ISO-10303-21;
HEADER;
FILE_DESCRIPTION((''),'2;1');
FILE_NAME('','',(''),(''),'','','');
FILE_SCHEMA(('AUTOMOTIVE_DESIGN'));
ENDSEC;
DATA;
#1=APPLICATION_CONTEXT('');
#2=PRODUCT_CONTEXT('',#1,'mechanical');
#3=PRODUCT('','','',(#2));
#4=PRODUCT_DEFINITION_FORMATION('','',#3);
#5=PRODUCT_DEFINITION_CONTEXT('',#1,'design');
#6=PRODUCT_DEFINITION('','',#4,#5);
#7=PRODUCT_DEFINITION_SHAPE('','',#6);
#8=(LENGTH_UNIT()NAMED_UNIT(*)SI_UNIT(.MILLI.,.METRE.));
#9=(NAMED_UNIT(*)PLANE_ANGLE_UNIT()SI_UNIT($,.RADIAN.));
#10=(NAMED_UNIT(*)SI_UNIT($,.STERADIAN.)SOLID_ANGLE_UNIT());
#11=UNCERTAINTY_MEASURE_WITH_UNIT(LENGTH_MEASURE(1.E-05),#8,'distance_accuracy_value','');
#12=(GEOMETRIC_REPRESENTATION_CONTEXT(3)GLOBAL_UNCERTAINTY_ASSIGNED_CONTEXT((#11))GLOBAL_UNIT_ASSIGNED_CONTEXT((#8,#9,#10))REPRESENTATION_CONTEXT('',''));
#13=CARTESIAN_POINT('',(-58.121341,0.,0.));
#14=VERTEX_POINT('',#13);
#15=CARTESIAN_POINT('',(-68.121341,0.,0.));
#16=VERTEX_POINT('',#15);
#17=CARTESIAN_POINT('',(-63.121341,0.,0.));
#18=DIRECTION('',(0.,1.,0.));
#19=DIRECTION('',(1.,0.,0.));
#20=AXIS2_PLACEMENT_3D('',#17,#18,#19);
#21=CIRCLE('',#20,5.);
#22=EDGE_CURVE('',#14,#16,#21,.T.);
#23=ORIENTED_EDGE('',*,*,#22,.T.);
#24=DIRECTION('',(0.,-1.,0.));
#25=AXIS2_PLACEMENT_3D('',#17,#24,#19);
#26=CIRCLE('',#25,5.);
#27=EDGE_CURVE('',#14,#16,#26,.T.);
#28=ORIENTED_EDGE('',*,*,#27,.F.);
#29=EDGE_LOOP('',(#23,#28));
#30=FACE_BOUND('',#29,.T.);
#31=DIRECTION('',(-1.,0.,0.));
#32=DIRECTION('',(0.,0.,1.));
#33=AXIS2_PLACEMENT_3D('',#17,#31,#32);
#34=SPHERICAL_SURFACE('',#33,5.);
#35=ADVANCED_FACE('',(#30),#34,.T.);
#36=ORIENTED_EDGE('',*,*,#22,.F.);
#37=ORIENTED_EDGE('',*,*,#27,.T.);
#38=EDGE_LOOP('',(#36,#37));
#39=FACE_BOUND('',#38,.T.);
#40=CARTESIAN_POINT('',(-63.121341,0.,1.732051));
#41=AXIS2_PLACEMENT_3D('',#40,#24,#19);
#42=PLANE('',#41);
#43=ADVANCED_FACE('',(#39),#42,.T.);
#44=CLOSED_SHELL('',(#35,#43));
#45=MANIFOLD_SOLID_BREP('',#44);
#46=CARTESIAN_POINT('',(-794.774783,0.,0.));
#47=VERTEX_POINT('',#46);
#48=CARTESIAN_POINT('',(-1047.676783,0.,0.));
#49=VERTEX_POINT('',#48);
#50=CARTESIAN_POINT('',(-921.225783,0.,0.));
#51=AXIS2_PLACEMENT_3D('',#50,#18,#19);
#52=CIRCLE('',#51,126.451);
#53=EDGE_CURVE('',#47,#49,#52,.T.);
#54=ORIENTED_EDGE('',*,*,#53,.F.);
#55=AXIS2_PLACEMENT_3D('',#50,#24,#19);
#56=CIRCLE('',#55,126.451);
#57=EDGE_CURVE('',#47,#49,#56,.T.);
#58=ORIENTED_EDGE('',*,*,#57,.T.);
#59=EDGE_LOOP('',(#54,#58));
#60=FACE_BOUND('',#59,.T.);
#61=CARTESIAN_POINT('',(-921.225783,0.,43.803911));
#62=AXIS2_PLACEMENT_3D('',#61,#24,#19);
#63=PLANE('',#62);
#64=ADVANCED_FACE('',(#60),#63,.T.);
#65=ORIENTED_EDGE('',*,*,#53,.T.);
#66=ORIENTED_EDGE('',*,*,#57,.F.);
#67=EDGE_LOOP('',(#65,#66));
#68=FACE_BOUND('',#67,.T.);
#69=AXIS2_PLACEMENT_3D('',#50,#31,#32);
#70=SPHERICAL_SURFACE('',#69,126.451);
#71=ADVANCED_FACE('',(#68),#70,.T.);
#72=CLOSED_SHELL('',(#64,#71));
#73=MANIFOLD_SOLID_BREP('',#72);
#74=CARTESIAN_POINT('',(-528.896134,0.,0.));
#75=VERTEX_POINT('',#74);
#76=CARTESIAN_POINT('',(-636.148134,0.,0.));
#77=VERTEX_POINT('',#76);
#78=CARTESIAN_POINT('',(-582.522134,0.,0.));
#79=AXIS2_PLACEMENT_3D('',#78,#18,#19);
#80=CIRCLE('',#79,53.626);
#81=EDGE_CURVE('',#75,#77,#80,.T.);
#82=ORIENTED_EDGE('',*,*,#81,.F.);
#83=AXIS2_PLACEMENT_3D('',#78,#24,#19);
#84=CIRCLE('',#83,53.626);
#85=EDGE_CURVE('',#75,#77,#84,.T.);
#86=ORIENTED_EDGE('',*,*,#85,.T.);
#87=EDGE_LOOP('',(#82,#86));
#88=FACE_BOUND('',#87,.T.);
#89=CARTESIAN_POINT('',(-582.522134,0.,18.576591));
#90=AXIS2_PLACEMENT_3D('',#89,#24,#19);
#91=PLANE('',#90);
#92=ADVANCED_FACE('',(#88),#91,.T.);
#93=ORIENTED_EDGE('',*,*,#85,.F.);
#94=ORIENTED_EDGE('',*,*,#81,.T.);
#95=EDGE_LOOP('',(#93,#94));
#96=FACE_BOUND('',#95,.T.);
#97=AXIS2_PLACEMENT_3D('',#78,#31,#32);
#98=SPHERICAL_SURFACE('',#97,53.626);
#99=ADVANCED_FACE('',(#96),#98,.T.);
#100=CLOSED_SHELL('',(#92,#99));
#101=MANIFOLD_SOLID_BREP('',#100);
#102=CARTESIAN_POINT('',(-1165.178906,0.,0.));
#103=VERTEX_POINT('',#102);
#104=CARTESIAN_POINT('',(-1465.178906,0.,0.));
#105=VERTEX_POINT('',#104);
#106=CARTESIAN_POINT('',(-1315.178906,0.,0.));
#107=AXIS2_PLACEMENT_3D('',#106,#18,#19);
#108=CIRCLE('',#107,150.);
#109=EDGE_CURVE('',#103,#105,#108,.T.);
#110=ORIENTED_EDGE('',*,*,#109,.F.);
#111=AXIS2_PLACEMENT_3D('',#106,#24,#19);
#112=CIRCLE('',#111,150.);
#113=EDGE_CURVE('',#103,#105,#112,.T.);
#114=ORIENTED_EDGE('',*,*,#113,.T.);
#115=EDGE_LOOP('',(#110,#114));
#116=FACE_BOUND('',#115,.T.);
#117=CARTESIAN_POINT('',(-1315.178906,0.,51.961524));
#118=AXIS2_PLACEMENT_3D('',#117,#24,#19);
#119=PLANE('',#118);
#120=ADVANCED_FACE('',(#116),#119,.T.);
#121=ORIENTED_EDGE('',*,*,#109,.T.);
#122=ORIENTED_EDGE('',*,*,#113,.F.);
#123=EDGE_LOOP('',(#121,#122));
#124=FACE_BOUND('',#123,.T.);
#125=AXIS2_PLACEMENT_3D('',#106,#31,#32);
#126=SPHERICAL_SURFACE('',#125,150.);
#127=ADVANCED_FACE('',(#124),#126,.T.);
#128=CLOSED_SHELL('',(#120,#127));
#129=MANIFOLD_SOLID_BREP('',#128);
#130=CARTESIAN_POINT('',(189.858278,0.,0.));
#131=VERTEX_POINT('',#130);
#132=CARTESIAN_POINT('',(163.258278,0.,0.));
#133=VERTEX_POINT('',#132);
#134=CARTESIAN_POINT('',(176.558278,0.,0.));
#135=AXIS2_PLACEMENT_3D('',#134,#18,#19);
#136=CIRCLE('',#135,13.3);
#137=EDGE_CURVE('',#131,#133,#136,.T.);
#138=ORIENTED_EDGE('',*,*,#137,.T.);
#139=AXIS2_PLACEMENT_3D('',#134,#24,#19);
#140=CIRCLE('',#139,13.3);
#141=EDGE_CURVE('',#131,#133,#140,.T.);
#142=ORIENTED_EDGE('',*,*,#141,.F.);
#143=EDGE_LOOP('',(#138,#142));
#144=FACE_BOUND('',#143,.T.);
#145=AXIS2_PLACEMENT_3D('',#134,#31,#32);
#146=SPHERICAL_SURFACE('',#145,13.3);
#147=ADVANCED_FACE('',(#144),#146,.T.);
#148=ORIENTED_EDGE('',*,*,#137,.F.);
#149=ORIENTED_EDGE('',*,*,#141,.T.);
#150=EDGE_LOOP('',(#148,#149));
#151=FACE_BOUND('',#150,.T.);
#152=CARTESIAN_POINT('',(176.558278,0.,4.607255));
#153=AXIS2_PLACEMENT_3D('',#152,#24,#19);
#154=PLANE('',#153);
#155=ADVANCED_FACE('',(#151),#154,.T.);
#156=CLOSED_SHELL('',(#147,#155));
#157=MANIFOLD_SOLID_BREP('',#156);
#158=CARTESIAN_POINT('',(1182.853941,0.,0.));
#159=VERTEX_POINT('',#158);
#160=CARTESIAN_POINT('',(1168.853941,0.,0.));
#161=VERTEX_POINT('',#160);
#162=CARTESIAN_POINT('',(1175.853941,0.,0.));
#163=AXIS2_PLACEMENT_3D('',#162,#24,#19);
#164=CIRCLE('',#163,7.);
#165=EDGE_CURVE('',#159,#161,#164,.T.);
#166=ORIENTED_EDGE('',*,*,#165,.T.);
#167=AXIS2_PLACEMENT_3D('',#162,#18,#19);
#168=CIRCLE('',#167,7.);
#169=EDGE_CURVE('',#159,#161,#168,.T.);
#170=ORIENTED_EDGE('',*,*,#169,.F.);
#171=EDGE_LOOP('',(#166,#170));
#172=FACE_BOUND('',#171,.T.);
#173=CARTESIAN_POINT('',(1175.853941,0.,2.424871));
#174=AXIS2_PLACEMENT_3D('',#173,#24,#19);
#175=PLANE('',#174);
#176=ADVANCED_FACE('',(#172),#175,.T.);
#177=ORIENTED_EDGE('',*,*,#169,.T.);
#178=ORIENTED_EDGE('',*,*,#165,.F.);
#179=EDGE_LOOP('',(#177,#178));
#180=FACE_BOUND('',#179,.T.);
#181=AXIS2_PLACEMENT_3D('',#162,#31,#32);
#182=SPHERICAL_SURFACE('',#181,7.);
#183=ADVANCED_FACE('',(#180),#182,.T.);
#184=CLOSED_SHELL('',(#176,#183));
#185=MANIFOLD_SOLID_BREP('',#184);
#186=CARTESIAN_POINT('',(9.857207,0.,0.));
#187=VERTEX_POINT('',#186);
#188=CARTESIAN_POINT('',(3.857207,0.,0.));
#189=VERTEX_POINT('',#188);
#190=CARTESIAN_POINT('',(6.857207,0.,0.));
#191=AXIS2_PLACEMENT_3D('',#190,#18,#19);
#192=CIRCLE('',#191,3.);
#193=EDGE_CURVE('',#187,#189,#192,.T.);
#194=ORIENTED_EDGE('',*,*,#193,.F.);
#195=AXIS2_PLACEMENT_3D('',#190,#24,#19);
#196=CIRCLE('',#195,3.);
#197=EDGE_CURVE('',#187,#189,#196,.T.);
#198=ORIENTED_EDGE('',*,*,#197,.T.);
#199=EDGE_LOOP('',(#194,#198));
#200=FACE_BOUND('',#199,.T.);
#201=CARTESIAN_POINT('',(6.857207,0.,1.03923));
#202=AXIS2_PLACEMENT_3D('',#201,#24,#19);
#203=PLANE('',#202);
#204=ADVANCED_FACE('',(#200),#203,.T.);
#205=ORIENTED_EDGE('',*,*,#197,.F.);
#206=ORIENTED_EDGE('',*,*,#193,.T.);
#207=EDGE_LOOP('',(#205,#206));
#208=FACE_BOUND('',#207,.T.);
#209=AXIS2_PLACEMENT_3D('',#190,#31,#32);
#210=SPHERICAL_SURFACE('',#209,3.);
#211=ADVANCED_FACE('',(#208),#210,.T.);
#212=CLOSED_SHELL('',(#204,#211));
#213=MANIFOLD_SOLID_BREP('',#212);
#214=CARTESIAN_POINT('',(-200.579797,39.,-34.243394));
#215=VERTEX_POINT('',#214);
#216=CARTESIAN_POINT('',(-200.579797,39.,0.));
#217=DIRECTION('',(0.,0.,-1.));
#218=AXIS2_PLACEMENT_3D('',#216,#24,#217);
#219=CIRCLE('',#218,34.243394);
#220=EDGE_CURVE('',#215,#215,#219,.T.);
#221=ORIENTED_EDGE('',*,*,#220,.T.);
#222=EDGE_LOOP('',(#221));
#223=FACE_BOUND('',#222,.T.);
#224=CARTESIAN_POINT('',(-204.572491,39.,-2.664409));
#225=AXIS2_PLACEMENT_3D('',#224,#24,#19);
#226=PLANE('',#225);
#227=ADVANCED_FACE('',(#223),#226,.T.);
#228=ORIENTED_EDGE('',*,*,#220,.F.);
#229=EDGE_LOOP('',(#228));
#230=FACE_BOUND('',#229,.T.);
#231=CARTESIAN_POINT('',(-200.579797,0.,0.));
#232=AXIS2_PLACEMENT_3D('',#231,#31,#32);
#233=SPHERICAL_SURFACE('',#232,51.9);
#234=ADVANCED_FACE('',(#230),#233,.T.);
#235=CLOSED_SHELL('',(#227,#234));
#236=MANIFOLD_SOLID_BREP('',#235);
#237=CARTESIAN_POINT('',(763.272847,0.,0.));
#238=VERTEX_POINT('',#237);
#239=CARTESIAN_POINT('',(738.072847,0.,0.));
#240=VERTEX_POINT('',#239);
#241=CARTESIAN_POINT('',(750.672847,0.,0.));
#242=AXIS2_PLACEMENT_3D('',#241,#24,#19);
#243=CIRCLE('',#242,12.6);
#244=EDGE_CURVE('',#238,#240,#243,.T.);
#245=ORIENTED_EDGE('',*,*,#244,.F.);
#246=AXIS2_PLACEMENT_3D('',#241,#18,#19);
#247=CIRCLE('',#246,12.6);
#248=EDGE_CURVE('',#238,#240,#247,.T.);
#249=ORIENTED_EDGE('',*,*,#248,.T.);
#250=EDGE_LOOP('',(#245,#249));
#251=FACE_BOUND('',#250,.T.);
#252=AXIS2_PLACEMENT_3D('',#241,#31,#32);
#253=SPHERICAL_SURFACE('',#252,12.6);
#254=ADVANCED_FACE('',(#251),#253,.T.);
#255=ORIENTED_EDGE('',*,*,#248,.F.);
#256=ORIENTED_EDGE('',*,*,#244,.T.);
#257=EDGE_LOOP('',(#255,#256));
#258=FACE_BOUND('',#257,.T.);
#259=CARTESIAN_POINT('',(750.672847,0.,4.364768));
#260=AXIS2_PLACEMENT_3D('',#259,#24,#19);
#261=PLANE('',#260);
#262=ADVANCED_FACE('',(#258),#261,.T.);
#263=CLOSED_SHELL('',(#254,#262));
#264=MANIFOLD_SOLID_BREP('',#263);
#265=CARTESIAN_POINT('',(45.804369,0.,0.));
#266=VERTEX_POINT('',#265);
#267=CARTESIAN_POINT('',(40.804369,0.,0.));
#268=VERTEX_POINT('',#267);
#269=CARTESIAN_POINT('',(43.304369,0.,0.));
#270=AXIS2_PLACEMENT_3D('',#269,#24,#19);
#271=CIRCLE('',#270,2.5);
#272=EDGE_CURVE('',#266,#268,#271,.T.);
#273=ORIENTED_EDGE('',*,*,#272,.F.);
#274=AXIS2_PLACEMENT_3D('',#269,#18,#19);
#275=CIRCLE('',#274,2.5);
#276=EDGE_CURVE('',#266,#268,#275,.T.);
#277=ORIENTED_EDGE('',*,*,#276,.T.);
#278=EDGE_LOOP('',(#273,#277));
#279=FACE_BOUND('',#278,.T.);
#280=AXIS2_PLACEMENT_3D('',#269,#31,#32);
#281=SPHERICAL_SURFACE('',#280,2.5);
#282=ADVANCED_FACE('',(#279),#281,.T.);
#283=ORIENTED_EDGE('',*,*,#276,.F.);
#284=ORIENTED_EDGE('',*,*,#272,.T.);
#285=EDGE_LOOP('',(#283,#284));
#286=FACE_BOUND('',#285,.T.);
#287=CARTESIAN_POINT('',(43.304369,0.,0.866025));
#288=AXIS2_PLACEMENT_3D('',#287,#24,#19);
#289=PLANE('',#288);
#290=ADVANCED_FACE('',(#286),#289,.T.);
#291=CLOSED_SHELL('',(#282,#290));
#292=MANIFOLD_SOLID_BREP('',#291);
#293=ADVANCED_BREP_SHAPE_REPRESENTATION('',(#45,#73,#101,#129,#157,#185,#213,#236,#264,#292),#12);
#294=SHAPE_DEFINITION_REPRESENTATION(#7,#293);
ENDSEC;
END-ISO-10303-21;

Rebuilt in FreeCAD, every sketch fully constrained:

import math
import FreeCAD as App
import Part
import Sketcher

V = App.Vector
Q = App.Units.Quantity

doc = App.newDocument("Part")
params = doc.addObject("Spreadsheet::Sheet", "Params")
for row, (alias, value) in enumerate([
    ("sketch1_radius", "150 mm"),
    ("sketch1_radius2", "7 mm"),
    ("sketch1_radius3", "5 mm"),
    ("sketch1_radius4", "3 mm"),
    ("sketch1_radius5", "51.9 mm"),
    ("revolution_angle", "180 deg"),
    ("pad1_length", "39 mm"),
], start=1):
    params.set(f"A{row}", alias)
    params.set(f"B{row}", "=" + value)
    params.setAlias(f"B{row}", alias)

body = doc.addObject("PartDesign::Body", "Body")
body.AllowCompound = True

sketch1 = body.newObject("Sketcher::SketchObject", "Sketch")
sketch1.AttachmentSupport = (doc.getObject("XZ_Plane"), [""])
sketch1.MapMode = "FlatFace"
sketch1.addGeometry([
    Part.LineSegment(V(-1465.178906, 0, 0), V(-1165.178906, 0, 0)),
    Part.ArcOfCircle(Part.Circle(V(-1315.178906, 0, 0), V(0, 0, 1), 150), math.radians(0), math.radians(180)),
    Part.LineSegment(V(-1047.676783, 0, 0), V(-794.774783, 0, 0)),
    Part.ArcOfCircle(Part.Circle(V(-921.225783, 0, 0), V(0, 0, 1), 126.451), math.radians(0), math.radians(180)),
    Part.LineSegment(V(-636.148134, 0, 0), V(-528.896134, 0, 0)),
    Part.ArcOfCircle(Part.Circle(V(-582.522134, 0, 0), V(0, 0, 1), 53.626), math.radians(0), math.radians(180)),
    Part.LineSegment(V(-252.479797, 0, 0), V(-148.679797, 0, 0)),
    Part.ArcOfCircle(Part.Circle(V(-200.579797, 0, 0), V(0, 0, 1), 51.9), math.radians(0), math.radians(180)),
    Part.LineSegment(V(163.258278, 0, 0), V(189.858278, 0, 0)),
    Part.ArcOfCircle(Part.Circle(V(176.558278, 0, 0), V(0, 0, 1), 13.3), math.radians(0), math.radians(180)),
    Part.LineSegment(V(738.072847, 0, 0), V(763.272847, 0, 0)),
    Part.ArcOfCircle(Part.Circle(V(750.672847, 0, 0), V(0, 0, 1), 12.6), math.radians(0), math.radians(180)),
    Part.LineSegment(V(1168.853941, 0, 0), V(1182.853941, 0, 0)),
    Part.ArcOfCircle(Part.Circle(V(1175.853941, 0, 0), V(0, 0, 1), 7), math.radians(0), math.radians(180)),
    Part.LineSegment(V(-68.121341, 0, 0), V(-58.121341, 0, 0)),
    Part.ArcOfCircle(Part.Circle(V(-63.121341, 0, 0), V(0, 0, 1), 5), math.radians(0), math.radians(180)),
    Part.LineSegment(V(3.857207, 0, 0), V(9.857207, 0, 0)),
    Part.ArcOfCircle(Part.Circle(V(6.857207, 0, 0), V(0, 0, 1), 3), math.radians(0), math.radians(180)),
    Part.LineSegment(V(40.804369, 0, 0), V(45.804369, 0, 0)),
    Part.ArcOfCircle(Part.Circle(V(43.304369, 0, 0), V(0, 0, 1), 2.5), math.radians(0), math.radians(180)),
], False)
sketch1.addConstraint([
    Sketcher.Constraint("Coincident", 0, 1, 1, 2),
    Sketcher.Constraint("Coincident", 1, 1, 0, 2),
    Sketcher.Constraint("Coincident", 2, 1, 3, 2),
    Sketcher.Constraint("Coincident", 3, 1, 2, 2),
    Sketcher.Constraint("Coincident", 4, 1, 5, 2),
    Sketcher.Constraint("Coincident", 5, 1, 4, 2),
    Sketcher.Constraint("Coincident", 6, 1, 7, 2),
    Sketcher.Constraint("Coincident", 7, 1, 6, 2),
    Sketcher.Constraint("Coincident", 8, 1, 9, 2),
    Sketcher.Constraint("Coincident", 9, 1, 8, 2),
    Sketcher.Constraint("Coincident", 10, 1, 11, 2),
    Sketcher.Constraint("Coincident", 11, 1, 10, 2),
    Sketcher.Constraint("Coincident", 12, 1, 13, 2),
    Sketcher.Constraint("Coincident", 13, 1, 12, 2),
    Sketcher.Constraint("Coincident", 14, 1, 15, 2),
    Sketcher.Constraint("Coincident", 15, 1, 14, 2),
    Sketcher.Constraint("Coincident", 16, 1, 17, 2),
    Sketcher.Constraint("Coincident", 17, 1, 16, 2),
    Sketcher.Constraint("Coincident", 18, 1, 19, 2),
    Sketcher.Constraint("Coincident", 19, 1, 18, 2),
    Sketcher.Constraint("Horizontal", 0),
    Sketcher.Constraint("Horizontal", 2),
    Sketcher.Constraint("Horizontal", 4),
    Sketcher.Constraint("Horizontal", 6),
    Sketcher.Constraint("Horizontal", 8),
    Sketcher.Constraint("Horizontal", 10),
    Sketcher.Constraint("Horizontal", 12),
    Sketcher.Constraint("Horizontal", 14),
    Sketcher.Constraint("Horizontal", 16),
    Sketcher.Constraint("Horizontal", 18),
    Sketcher.Constraint("PointOnObject", 1, 3, -1),
    Sketcher.Constraint("PointOnObject", 3, 3, -1),
    Sketcher.Constraint("PointOnObject", 5, 3, -1),
    Sketcher.Constraint("PointOnObject", 7, 3, -1),
    Sketcher.Constraint("PointOnObject", 9, 3, -1),
    Sketcher.Constraint("PointOnObject", 11, 3, -1),
    Sketcher.Constraint("PointOnObject", 13, 3, -1),
    Sketcher.Constraint("PointOnObject", 15, 3, -1),
    Sketcher.Constraint("PointOnObject", 17, 3, -1),
    Sketcher.Constraint("PointOnObject", 19, 3, -1),
    Sketcher.Constraint("PointOnObject", 0, 1, -1),
    Sketcher.Constraint("PointOnObject", 2, 1, -1),
    Sketcher.Constraint("PointOnObject", 4, 1, -1),
    Sketcher.Constraint("PointOnObject", 6, 1, -1),
    Sketcher.Constraint("PointOnObject", 8, 1, -1),
    Sketcher.Constraint("PointOnObject", 10, 1, -1),
    Sketcher.Constraint("PointOnObject", 12, 1, -1),
    Sketcher.Constraint("PointOnObject", 14, 1, -1),
    Sketcher.Constraint("PointOnObject", 16, 1, -1),
    Sketcher.Constraint("PointOnObject", 18, 1, -1),
    Sketcher.Constraint("Radius", 1, Q("150 mm")),
    Sketcher.Constraint("Radius", 13, Q("7 mm")),
    Sketcher.Constraint("Radius", 15, Q("5 mm")),
    Sketcher.Constraint("Radius", 17, Q("3 mm")),
    Sketcher.Constraint("Radius", 7, Q("51.9 mm")),
    Sketcher.Constraint("Radius", 9, Q("13.3 mm")),
    Sketcher.Constraint("Radius", 11, Q("12.6 mm")),
    Sketcher.Constraint("Radius", 19, Q("2.5 mm")),
    Sketcher.Constraint("Radius", 3, Q("126.451 mm")),
    Sketcher.Constraint("Radius", 5, Q("53.626 mm")),
    Sketcher.Constraint("DistanceX", -1, 1, 9, 3, Q("176.558278 mm")),
    Sketcher.Constraint("DistanceX", -1, 1, 13, 3, Q("1175.853941 mm")),
    Sketcher.Constraint("DistanceX", 15, 3, -1, 1, Q("63.121341 mm")),
    Sketcher.Constraint("DistanceX", -1, 1, 19, 3, Q("43.304369 mm")),
    Sketcher.Constraint("DistanceX", 3, 3, 5, 3, Q("338.703649 mm")),
    Sketcher.Constraint("DistanceX", 1, 3, 5, 3, Q("732.656772 mm")),
    Sketcher.Constraint("DistanceX", 1, 3, 7, 3, Q("1114.599109 mm")),
    Sketcher.Constraint("DistanceX", 5, 3, 9, 3, Q("759.080412 mm")),
    Sketcher.Constraint("DistanceX", 9, 3, 11, 3, Q("574.114569 mm")),
    Sketcher.Constraint("DistanceX", 15, 3, 17, 3, Q("69.978548 mm")),
])
sketch1.setExpression("Constraints[50]", "Params.sketch1_radius")
sketch1.setExpression("Constraints[51]", "Params.sketch1_radius2")
sketch1.setExpression("Constraints[52]", "Params.sketch1_radius3")
sketch1.setExpression("Constraints[53]", "Params.sketch1_radius4")
sketch1.setExpression("Constraints[54]", "Params.sketch1_radius5")
revolution = body.newObject("PartDesign::Revolution", "Revolution")
revolution.Profile = sketch1
revolution.ReferenceAxis = (sketch1, ["H_Axis"])
revolution.setExpression("Angle", "Params.revolution_angle")
revolution.Reversed = True
body2 = doc.addObject("PartDesign::Body", "Body001")

sketch2 = body2.newObject("Sketcher::SketchObject", "Sketch001")
sketch2.AttachmentSupport = (doc.getObject("XZ_Plane001"), [""])
sketch2.MapMode = "FlatFace"
sketch2.addGeometry([
    Part.LineSegment(V(-277.106643, 62.549785, 0), V(-277.106643, -67.878603, 0)),
    Part.LineSegment(V(-277.106643, -67.878603, 0), V(-132.03834, -67.878603, 0)),
    Part.LineSegment(V(-132.03834, -67.878603, 0), V(-132.03834, 62.549785, 0)),
    Part.LineSegment(V(-132.03834, 62.549785, 0), V(-277.106643, 62.549785, 0)),
], False)
sketch2.addConstraint([
    Sketcher.Constraint("Coincident", 0, 2, 1, 1),
    Sketcher.Constraint("Coincident", 1, 2, 2, 1),
    Sketcher.Constraint("Coincident", 2, 2, 3, 1),
    Sketcher.Constraint("Coincident", 3, 2, 0, 1),
    Sketcher.Constraint("Vertical", 0),
    Sketcher.Constraint("Horizontal", 1),
    Sketcher.Constraint("Vertical", 2),
    Sketcher.Constraint("Horizontal", 3),
    Sketcher.Constraint("DistanceY", 0, 2, 0, 1, Q("130.428389 mm")),
    Sketcher.Constraint("DistanceX", 1, 1, 1, 2, Q("145.068303 mm")),
    Sketcher.Constraint("DistanceX", 1, 2, -1, 1, Q("132.03834 mm")),
    Sketcher.Constraint("DistanceY", 0, 2, -1, 1, Q("67.878603 mm")),
])
pad1 = body2.newObject("PartDesign::Pad", "Pad")
pad1.Profile = sketch2
pad1.setExpression("Length", "Params.pad1_length")
pad1.Reversed = True
body.AllowCompound = True
doc.recompute()

boolean = body.newObject("PartDesign::Boolean", "Boolean")
boolean.Type = "Cut"
boolean.addObjects([body2])

doc.recompute()
